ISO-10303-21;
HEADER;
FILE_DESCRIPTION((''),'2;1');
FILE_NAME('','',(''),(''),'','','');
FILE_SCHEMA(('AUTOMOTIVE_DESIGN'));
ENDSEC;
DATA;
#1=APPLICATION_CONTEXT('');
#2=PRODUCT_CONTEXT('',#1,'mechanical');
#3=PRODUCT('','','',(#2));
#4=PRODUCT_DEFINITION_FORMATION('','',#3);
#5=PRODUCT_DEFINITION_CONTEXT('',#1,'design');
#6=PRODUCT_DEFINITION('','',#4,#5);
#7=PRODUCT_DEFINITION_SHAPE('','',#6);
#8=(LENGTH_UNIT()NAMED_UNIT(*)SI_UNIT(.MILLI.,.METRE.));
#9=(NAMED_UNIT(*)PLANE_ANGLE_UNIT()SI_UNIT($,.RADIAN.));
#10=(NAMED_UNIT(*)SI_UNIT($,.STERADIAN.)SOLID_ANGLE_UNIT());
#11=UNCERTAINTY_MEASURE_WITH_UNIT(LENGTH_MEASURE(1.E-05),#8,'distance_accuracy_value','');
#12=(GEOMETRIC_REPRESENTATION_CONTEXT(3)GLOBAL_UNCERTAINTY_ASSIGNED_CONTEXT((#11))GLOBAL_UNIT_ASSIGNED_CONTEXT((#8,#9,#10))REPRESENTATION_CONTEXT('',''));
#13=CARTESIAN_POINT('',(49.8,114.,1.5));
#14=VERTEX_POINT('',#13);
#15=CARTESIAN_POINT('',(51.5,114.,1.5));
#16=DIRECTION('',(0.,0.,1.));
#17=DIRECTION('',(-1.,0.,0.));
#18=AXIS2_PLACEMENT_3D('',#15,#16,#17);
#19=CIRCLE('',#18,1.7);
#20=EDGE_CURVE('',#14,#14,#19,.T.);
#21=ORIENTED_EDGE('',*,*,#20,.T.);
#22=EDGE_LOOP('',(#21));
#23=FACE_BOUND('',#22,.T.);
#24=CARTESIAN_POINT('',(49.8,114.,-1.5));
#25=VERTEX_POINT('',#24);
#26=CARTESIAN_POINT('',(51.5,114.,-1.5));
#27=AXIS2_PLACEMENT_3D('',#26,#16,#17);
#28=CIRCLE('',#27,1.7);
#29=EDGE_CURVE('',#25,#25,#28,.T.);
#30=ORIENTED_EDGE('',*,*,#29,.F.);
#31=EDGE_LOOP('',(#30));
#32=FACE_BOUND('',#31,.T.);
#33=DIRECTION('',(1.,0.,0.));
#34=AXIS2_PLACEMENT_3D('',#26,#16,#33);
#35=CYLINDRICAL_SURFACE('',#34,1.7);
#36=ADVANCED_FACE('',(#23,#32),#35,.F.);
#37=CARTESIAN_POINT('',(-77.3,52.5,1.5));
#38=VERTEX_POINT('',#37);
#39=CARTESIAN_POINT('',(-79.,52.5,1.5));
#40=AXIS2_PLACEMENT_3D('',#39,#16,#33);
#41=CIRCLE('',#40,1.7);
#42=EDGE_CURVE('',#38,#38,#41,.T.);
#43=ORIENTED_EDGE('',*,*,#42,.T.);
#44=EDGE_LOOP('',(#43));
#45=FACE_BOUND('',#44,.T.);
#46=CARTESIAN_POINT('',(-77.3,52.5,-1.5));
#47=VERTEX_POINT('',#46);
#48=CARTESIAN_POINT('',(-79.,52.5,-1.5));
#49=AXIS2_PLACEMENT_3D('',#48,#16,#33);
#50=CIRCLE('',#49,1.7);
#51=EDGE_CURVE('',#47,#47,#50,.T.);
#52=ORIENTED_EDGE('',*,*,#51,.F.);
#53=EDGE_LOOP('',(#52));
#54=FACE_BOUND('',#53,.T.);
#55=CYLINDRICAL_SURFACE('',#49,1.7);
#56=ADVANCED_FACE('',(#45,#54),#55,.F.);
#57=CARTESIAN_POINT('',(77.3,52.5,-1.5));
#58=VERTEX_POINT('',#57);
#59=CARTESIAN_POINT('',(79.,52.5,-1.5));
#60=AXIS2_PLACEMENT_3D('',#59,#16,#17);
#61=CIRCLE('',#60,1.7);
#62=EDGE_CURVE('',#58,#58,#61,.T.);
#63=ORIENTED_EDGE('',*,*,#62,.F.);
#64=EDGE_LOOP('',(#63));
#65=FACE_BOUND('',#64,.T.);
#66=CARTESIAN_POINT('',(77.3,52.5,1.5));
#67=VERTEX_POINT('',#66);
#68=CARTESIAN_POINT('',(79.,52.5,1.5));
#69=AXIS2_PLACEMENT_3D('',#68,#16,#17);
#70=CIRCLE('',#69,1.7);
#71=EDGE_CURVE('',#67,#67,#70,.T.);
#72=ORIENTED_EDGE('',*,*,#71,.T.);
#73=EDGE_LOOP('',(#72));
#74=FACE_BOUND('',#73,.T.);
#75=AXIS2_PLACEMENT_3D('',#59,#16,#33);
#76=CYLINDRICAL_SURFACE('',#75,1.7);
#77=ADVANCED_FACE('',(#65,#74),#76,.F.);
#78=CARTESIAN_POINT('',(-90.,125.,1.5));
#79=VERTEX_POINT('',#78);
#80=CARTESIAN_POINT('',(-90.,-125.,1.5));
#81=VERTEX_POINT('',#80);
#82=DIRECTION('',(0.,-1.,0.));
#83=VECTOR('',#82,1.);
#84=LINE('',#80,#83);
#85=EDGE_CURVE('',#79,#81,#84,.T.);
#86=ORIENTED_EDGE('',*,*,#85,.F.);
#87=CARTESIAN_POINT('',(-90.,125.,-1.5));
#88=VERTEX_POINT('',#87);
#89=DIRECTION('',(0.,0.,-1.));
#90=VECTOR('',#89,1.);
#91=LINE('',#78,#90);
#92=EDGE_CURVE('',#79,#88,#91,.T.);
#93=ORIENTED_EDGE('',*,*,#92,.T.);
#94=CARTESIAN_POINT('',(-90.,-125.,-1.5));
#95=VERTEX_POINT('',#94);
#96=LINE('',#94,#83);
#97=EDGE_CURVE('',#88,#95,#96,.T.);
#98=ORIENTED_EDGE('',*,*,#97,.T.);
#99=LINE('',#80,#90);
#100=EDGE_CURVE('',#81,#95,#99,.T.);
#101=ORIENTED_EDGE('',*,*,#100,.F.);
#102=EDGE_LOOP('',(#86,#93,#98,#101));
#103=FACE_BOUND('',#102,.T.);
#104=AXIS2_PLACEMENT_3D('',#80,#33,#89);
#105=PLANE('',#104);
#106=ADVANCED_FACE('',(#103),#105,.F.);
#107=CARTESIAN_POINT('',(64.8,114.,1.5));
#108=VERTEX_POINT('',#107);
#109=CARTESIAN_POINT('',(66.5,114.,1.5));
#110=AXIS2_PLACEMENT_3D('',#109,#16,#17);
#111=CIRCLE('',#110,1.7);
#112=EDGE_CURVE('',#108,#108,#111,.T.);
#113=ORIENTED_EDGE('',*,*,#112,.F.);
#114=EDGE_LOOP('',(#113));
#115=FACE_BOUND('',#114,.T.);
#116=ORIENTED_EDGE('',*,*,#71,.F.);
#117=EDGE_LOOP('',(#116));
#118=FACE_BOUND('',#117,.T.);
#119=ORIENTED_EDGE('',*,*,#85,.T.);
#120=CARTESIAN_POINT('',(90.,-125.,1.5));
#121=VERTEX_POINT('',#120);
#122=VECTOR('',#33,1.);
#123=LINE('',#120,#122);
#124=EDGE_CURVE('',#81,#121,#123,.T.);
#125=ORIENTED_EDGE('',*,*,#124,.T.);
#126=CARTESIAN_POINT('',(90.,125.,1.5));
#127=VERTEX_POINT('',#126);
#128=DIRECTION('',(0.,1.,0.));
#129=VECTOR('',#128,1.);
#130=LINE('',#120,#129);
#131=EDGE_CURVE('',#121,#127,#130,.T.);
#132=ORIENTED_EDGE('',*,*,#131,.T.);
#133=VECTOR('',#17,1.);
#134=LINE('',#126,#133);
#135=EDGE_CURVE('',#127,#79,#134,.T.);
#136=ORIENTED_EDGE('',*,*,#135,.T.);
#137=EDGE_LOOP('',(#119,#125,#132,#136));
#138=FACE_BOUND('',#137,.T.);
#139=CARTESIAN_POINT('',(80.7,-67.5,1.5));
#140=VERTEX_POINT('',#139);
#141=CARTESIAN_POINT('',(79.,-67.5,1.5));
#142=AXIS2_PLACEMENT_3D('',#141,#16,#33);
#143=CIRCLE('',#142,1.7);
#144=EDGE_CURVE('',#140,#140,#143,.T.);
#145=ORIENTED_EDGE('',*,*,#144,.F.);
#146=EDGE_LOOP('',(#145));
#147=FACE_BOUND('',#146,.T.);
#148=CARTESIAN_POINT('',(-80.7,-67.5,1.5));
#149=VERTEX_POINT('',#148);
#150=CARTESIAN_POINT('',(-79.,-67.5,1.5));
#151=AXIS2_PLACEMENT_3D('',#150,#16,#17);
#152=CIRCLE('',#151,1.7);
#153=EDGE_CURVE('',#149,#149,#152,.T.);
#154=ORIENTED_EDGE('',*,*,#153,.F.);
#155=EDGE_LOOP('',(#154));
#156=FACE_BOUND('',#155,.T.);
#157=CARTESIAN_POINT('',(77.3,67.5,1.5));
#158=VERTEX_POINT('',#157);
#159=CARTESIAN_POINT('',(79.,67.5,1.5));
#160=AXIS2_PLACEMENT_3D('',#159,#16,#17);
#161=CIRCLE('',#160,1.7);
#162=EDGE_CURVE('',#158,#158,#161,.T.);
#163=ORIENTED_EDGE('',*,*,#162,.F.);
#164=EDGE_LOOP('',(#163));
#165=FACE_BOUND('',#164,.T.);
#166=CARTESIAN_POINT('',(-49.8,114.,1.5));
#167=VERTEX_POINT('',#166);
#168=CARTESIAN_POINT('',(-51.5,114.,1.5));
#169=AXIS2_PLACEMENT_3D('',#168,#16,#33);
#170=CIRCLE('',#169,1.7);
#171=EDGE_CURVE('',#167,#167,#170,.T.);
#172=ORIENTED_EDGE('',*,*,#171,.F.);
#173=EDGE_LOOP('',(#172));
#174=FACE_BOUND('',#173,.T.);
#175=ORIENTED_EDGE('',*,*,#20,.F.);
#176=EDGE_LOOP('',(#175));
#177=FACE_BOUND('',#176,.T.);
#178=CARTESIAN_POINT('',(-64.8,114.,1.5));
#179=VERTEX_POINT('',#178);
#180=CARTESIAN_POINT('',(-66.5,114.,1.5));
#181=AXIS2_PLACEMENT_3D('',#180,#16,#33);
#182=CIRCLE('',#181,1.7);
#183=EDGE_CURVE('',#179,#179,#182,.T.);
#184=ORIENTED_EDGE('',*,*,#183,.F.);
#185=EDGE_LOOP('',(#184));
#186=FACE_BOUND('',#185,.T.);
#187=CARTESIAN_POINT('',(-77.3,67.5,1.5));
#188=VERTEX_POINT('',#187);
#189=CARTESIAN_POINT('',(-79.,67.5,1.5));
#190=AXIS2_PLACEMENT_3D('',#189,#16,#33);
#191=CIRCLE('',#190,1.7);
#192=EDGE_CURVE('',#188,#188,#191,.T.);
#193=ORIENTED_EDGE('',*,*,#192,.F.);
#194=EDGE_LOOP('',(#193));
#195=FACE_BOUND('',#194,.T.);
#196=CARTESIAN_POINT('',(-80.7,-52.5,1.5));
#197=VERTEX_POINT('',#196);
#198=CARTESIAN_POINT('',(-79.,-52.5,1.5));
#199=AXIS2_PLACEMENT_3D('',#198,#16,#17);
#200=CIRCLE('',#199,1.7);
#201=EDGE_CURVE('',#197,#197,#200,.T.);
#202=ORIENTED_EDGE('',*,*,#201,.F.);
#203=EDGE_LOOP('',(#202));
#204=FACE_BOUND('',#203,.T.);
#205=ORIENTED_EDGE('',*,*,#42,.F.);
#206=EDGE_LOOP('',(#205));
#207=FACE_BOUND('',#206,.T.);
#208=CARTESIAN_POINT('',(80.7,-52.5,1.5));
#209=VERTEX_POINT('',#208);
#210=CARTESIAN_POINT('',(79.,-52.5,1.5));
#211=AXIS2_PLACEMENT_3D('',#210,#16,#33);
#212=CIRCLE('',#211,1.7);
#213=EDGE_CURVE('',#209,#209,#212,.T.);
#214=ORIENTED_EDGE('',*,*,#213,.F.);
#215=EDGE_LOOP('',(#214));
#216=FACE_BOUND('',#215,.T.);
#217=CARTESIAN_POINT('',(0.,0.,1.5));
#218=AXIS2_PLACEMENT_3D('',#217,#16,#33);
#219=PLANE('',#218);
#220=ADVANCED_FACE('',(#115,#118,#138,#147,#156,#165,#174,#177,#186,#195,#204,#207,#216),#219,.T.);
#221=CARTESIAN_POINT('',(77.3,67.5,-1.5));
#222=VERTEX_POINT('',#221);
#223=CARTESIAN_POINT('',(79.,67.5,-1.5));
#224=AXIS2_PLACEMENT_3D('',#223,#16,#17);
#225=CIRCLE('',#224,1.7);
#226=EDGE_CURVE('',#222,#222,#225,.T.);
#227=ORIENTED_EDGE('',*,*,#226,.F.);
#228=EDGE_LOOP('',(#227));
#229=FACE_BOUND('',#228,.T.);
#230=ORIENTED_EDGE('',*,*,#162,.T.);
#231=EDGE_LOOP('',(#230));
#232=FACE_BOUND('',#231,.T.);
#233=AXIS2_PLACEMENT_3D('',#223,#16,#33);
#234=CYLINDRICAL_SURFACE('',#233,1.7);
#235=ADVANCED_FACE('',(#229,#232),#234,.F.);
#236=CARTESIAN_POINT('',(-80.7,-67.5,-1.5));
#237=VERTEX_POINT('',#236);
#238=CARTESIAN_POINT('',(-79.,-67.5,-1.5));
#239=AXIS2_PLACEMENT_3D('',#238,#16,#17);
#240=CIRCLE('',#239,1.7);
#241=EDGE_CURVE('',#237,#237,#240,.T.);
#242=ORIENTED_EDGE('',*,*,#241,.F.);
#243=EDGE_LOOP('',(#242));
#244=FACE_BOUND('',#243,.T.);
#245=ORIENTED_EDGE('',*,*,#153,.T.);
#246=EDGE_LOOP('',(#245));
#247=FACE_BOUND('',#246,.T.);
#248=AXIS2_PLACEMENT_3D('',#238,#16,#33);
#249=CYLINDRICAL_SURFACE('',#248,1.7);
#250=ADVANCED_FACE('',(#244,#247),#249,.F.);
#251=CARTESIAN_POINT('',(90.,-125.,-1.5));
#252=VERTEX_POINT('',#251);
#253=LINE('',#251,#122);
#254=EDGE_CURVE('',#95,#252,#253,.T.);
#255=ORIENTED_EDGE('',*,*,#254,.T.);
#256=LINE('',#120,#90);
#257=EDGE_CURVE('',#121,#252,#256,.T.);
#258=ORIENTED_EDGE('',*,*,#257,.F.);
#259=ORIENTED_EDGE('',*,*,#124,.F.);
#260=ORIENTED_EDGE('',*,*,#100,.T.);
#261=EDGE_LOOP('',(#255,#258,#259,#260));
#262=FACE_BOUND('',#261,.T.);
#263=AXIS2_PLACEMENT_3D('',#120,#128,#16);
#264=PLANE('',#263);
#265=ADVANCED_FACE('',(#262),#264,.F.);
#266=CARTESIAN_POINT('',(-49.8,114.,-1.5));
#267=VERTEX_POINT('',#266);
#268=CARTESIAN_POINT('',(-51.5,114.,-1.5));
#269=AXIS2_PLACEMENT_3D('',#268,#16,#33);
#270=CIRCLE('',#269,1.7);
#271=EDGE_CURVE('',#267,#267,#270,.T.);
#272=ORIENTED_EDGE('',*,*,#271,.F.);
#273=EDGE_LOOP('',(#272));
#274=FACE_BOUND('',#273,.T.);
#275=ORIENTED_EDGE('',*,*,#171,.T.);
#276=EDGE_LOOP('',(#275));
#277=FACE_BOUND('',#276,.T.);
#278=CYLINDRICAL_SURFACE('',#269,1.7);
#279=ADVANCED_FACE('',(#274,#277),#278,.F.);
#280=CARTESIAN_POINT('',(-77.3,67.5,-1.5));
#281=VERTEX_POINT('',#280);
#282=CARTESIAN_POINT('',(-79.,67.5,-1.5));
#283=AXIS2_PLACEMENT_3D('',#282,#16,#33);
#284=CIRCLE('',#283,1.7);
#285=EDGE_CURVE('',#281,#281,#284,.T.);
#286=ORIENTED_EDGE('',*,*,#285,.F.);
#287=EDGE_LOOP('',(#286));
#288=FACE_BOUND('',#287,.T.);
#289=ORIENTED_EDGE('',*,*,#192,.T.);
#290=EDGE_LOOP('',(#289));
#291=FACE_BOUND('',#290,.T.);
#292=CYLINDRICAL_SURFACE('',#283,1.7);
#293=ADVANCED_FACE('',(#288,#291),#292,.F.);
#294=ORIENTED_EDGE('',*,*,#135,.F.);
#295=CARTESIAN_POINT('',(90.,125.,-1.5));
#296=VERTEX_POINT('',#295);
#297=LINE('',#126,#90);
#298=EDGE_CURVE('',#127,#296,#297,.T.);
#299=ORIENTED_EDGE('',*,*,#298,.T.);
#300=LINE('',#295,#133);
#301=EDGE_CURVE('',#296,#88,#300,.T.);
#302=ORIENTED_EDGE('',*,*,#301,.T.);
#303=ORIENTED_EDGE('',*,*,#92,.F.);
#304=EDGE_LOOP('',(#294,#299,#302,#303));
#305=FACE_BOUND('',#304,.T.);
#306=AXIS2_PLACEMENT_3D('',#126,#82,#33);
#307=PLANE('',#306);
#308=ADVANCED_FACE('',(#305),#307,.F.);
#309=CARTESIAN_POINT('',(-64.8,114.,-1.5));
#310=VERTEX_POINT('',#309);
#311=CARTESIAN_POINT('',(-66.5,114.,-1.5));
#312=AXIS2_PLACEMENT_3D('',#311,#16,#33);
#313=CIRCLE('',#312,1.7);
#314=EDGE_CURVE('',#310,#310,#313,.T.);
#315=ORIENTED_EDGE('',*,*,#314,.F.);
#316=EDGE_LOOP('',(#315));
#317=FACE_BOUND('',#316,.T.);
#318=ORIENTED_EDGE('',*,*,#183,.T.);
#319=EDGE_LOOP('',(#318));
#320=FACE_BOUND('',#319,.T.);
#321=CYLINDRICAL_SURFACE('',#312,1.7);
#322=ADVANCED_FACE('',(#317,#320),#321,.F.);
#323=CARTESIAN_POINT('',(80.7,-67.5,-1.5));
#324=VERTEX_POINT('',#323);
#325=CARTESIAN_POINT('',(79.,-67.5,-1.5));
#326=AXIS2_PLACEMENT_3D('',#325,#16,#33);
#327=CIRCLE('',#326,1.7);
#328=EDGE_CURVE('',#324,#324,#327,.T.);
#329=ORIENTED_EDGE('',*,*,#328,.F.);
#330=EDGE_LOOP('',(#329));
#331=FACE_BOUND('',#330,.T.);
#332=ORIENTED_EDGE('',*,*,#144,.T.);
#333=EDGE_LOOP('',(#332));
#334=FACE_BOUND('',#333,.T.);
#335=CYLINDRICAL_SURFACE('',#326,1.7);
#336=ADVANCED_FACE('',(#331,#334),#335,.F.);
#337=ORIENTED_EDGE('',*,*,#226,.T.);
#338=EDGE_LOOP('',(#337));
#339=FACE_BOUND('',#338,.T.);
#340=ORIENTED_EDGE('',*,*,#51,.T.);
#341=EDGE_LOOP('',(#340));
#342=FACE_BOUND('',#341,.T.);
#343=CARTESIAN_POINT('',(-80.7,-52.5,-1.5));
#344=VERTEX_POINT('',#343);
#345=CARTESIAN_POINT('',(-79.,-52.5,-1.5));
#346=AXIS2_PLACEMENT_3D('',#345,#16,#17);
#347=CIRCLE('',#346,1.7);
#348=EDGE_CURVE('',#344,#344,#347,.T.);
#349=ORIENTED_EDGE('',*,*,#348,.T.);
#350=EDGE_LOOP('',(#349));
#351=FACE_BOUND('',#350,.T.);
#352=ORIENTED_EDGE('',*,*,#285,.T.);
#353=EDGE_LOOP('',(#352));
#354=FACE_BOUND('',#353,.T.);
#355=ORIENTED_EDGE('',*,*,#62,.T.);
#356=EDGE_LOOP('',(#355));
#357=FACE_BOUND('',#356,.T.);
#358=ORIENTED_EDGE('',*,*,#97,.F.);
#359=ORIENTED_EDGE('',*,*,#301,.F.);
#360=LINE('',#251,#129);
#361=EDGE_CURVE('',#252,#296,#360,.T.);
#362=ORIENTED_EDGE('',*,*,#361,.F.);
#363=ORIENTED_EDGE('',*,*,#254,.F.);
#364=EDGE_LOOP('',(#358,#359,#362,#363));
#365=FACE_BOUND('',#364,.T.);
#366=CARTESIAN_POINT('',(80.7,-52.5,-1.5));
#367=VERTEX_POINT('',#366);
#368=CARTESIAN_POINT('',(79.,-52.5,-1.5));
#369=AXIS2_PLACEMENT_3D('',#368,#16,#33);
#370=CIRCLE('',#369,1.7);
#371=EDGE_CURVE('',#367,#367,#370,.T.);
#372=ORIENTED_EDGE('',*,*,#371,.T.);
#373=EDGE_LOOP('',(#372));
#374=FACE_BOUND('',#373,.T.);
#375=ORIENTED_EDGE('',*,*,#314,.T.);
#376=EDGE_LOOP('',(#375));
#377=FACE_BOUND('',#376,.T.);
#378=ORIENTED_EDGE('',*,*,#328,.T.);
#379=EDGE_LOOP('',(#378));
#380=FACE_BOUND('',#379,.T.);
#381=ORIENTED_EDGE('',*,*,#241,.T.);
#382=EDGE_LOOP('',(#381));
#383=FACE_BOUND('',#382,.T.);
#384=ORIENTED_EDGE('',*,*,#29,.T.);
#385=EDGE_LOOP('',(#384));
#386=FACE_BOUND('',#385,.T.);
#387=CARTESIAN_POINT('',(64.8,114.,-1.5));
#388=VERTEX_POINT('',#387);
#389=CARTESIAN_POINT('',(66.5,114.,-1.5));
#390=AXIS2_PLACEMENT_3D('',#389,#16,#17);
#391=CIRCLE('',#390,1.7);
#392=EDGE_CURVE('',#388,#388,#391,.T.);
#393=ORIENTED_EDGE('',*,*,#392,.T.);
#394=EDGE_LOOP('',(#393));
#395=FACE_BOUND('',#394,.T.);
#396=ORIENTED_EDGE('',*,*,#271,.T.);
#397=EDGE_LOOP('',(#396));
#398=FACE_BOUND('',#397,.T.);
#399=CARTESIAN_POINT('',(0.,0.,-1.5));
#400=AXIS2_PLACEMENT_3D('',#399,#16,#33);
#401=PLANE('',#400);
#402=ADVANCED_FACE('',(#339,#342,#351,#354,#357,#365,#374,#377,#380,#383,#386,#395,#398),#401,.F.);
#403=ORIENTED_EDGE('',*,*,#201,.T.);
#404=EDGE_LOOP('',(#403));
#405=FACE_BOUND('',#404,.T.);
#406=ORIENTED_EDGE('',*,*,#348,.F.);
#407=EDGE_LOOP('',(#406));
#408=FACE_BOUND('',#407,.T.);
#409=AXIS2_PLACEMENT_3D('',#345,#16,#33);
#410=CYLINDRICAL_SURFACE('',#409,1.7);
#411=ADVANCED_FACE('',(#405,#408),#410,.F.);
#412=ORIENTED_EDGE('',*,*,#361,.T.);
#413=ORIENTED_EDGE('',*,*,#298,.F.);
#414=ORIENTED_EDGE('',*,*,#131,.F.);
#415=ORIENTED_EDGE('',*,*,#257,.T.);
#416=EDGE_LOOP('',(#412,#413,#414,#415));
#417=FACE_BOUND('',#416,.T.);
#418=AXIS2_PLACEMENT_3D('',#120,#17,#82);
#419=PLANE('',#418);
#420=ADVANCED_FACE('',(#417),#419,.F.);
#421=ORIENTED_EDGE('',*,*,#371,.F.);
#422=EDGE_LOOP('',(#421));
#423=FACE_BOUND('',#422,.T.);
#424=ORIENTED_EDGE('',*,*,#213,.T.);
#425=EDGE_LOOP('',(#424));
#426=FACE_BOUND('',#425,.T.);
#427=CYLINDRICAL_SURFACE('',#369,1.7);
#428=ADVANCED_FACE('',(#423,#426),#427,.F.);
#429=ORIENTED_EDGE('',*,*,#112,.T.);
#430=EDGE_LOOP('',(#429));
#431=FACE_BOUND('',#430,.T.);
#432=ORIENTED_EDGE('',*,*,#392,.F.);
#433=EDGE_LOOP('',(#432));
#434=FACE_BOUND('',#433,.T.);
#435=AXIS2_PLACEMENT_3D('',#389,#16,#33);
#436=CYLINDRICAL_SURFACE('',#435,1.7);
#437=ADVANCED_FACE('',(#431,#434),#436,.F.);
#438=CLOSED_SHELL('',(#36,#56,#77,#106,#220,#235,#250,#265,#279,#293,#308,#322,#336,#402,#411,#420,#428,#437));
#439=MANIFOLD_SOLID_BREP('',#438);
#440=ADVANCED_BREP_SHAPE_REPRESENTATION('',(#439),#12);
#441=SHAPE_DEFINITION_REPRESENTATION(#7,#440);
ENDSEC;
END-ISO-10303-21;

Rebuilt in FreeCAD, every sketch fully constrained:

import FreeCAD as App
import Part
import Sketcher

V = App.Vector
Q = App.Units.Quantity

doc = App.newDocument("Part")
params = doc.addObject("Spreadsheet::Sheet", "Params")
for row, (alias, value) in enumerate([
    ("sketch1_width", "180 mm"),
    ("sketch1_height", "250 mm"),
    ("pad1_length", "3 mm"),
    ("sketch2_diameter", "3.4 mm"),
    ("sketch3_diameter", "3.4 mm"),
], start=1):
    params.set(f"A{row}", alias)
    params.set(f"B{row}", "=" + value)
    params.setAlias(f"B{row}", alias)

body = doc.addObject("PartDesign::Body", "Body")

sketch1 = body.newObject("Sketcher::SketchObject", "Sketch")
sketch1.AttachmentSupport = (doc.getObject("XY_Plane"), [""])
sketch1.MapMode = "FlatFace"
sketch1.addGeometry([
    Part.LineSegment(V(-90, 125, 0), V(-90, -125, 0)),
    Part.LineSegment(V(-90, -125, 0), V(90, -125, 0)),
    Part.LineSegment(V(90, -125, 0), V(90, 125, 0)),
    Part.LineSegment(V(90, 125, 0), V(-90, 125, 0)),
], False)
sketch1.addConstraint([
    Sketcher.Constraint("Coincident", 0, 2, 1, 1),
    Sketcher.Constraint("Coincident", 1, 2, 2, 1),
    Sketcher.Constraint("Coincident", 2, 2, 3, 1),
    Sketcher.Constraint("Coincident", 3, 2, 0, 1),
    Sketcher.Constraint("Vertical", 0),
    Sketcher.Constraint("Horizontal", 1),
    Sketcher.Constraint("Vertical", 2),
    Sketcher.Constraint("Horizontal", 3),
    Sketcher.Constraint("Symmetric", 0, 2, 2, 2, -1, 1),
    Sketcher.Constraint("DistanceX", 1, 1, 1, 2, Q("180 mm")),
    Sketcher.Constraint("DistanceY", 0, 2, 0, 1, Q("250 mm")),
])
sketch1.setExpression("Constraints[9]", "Params.sketch1_width")
sketch1.setExpression("Constraints[10]", "Params.sketch1_height")
pad1 = body.newObject("PartDesign::Pad", "Pad")
pad1.Profile = sketch1
pad1.setExpression("Length", "Params.pad1_length")
pad1.Midplane = True

sketch2 = body.newObject("Sketcher::SketchObject", "Sketch001")
sketch2.AttachmentSupport = (doc.getObject("XY_Plane"), [""])
sketch2.MapMode = "FlatFace"
sketch2.AttachmentOffset = App.Placement(V(0, 0, 1.5), App.Rotation())
sketch2.addGeometry([
    Part.Circle(V(-51.5, 114, 0), V(0, 0, 1), 1.7),
    Part.Circle(V(-66.5, 114, 0), V(0, 0, 1), 1.7),
    Part.Circle(V(51.5, 114, 0), V(0, 0, 1), 1.7),
    Part.Circle(V(66.5, 114, 0), V(0, 0, 1), 1.7),
], False)
sketch2.addConstraint([
    Sketcher.Constraint("Equal", 0, 1),
    Sketcher.Constraint("Equal", 1, 2),
    Sketcher.Constraint("Equal", 2, 3),
    Sketcher.Constraint("Symmetric", 0, 3, 2, 3, -2),
    Sketcher.Constraint("Symmetric", 1, 3, 3, 3, -2),
    Sketcher.Constraint("Horizontal", 0, 3, 1, 3),
    Sketcher.Constraint("Diameter", 0, Q("3.4 mm")),
    Sketcher.Constraint("DistanceY", -1, 1, 0, 3, Q("114 mm")),
    Sketcher.Constraint("DistanceX", 1, 3, 0, 3, Q("15 mm")),
    Sketcher.Constraint("DistanceX", 0, 3, 2, 3, Q("103 mm")),
])
sketch2.setExpression("Constraints[6]", "Params.sketch2_diameter")
pocket1 = body.newObject("PartDesign::Pocket", "Pocket")
pocket1.Profile = sketch2
pocket1.Type = "ThroughAll"

sketch3 = body.newObject("Sketcher::SketchObject", "Sketch002")
sketch3.AttachmentSupport = (doc.getObject("XY_Plane"), [""])
sketch3.MapMode = "FlatFace"
sketch3.AttachmentOffset = App.Placement(V(0, 0, 1.5), App.Rotation())
sketch3.addGeometry([
    Part.Circle(V(-79, 67.5, 0), V(0, 0, 1), 1.7),
    Part.Circle(V(-79, 52.5, 0), V(0, 0, 1), 1.7),
    Part.Circle(V(-79, -52.5, 0), V(0, 0, 1), 1.7),
    Part.Circle(V(-79, -67.5, 0), V(0, 0, 1), 1.7),
    Part.Circle(V(79, -67.5, 0), V(0, 0, 1), 1.7),
    Part.Circle(V(79, -52.5, 0), V(0, 0, 1), 1.7),
    Part.Circle(V(79, 52.5, 0), V(0, 0, 1), 1.7),
    Part.Circle(V(79, 67.5, 0), V(0, 0, 1), 1.7),
], False)
sketch3.addConstraint([
    Sketcher.Constraint("Equal", 0, 1),
    Sketcher.Constraint("Equal", 1, 2),
    Sketcher.Constraint("Equal", 2, 3),
    Sketcher.Constraint("Equal", 3, 4),
    Sketcher.Constraint("Equal", 4, 5),
    Sketcher.Constraint("Equal", 5, 6),
    Sketcher.Constraint("Equal", 6, 7),
    Sketcher.Constraint("Symmetric", 0, 3, 4, 3, -1, 1),
    Sketcher.Constraint("Symmetric", 1, 3, 5, 3, -1, 1),
    Sketcher.Constraint("Symmetric", 2, 3, 6, 3, -1, 1),
    Sketcher.Constraint("Symmetric", 3, 3, 7, 3, -1, 1),
    Sketcher.Constraint("Symmetric", 3, 3, 4, 3, -2),
    Sketcher.Constraint("Symmetric", 2, 3, 5, 3, -2),
    Sketcher.Constraint("Vertical", 0, 3, 1, 3),
    Sketcher.Constraint("Diameter", 0, Q("3.4 mm")),
    Sketcher.Constraint("DistanceX", 0, 3, -1, 1, Q("79 mm")),
    Sketcher.Constraint("DistanceY", 1, 3, 0, 3, Q("15 mm")),
    Sketcher.Constraint("DistanceY", 2, 3, 1, 3, Q("105 mm")),
])
sketch3.setExpression("Constraints[14]", "Params.sketch3_diameter")
pocket2 = body.newObject("PartDesign::Pocket", "Pocket001")
pocket2.Profile = sketch3
pocket2.Type = "ThroughAll"

doc.recompute()
